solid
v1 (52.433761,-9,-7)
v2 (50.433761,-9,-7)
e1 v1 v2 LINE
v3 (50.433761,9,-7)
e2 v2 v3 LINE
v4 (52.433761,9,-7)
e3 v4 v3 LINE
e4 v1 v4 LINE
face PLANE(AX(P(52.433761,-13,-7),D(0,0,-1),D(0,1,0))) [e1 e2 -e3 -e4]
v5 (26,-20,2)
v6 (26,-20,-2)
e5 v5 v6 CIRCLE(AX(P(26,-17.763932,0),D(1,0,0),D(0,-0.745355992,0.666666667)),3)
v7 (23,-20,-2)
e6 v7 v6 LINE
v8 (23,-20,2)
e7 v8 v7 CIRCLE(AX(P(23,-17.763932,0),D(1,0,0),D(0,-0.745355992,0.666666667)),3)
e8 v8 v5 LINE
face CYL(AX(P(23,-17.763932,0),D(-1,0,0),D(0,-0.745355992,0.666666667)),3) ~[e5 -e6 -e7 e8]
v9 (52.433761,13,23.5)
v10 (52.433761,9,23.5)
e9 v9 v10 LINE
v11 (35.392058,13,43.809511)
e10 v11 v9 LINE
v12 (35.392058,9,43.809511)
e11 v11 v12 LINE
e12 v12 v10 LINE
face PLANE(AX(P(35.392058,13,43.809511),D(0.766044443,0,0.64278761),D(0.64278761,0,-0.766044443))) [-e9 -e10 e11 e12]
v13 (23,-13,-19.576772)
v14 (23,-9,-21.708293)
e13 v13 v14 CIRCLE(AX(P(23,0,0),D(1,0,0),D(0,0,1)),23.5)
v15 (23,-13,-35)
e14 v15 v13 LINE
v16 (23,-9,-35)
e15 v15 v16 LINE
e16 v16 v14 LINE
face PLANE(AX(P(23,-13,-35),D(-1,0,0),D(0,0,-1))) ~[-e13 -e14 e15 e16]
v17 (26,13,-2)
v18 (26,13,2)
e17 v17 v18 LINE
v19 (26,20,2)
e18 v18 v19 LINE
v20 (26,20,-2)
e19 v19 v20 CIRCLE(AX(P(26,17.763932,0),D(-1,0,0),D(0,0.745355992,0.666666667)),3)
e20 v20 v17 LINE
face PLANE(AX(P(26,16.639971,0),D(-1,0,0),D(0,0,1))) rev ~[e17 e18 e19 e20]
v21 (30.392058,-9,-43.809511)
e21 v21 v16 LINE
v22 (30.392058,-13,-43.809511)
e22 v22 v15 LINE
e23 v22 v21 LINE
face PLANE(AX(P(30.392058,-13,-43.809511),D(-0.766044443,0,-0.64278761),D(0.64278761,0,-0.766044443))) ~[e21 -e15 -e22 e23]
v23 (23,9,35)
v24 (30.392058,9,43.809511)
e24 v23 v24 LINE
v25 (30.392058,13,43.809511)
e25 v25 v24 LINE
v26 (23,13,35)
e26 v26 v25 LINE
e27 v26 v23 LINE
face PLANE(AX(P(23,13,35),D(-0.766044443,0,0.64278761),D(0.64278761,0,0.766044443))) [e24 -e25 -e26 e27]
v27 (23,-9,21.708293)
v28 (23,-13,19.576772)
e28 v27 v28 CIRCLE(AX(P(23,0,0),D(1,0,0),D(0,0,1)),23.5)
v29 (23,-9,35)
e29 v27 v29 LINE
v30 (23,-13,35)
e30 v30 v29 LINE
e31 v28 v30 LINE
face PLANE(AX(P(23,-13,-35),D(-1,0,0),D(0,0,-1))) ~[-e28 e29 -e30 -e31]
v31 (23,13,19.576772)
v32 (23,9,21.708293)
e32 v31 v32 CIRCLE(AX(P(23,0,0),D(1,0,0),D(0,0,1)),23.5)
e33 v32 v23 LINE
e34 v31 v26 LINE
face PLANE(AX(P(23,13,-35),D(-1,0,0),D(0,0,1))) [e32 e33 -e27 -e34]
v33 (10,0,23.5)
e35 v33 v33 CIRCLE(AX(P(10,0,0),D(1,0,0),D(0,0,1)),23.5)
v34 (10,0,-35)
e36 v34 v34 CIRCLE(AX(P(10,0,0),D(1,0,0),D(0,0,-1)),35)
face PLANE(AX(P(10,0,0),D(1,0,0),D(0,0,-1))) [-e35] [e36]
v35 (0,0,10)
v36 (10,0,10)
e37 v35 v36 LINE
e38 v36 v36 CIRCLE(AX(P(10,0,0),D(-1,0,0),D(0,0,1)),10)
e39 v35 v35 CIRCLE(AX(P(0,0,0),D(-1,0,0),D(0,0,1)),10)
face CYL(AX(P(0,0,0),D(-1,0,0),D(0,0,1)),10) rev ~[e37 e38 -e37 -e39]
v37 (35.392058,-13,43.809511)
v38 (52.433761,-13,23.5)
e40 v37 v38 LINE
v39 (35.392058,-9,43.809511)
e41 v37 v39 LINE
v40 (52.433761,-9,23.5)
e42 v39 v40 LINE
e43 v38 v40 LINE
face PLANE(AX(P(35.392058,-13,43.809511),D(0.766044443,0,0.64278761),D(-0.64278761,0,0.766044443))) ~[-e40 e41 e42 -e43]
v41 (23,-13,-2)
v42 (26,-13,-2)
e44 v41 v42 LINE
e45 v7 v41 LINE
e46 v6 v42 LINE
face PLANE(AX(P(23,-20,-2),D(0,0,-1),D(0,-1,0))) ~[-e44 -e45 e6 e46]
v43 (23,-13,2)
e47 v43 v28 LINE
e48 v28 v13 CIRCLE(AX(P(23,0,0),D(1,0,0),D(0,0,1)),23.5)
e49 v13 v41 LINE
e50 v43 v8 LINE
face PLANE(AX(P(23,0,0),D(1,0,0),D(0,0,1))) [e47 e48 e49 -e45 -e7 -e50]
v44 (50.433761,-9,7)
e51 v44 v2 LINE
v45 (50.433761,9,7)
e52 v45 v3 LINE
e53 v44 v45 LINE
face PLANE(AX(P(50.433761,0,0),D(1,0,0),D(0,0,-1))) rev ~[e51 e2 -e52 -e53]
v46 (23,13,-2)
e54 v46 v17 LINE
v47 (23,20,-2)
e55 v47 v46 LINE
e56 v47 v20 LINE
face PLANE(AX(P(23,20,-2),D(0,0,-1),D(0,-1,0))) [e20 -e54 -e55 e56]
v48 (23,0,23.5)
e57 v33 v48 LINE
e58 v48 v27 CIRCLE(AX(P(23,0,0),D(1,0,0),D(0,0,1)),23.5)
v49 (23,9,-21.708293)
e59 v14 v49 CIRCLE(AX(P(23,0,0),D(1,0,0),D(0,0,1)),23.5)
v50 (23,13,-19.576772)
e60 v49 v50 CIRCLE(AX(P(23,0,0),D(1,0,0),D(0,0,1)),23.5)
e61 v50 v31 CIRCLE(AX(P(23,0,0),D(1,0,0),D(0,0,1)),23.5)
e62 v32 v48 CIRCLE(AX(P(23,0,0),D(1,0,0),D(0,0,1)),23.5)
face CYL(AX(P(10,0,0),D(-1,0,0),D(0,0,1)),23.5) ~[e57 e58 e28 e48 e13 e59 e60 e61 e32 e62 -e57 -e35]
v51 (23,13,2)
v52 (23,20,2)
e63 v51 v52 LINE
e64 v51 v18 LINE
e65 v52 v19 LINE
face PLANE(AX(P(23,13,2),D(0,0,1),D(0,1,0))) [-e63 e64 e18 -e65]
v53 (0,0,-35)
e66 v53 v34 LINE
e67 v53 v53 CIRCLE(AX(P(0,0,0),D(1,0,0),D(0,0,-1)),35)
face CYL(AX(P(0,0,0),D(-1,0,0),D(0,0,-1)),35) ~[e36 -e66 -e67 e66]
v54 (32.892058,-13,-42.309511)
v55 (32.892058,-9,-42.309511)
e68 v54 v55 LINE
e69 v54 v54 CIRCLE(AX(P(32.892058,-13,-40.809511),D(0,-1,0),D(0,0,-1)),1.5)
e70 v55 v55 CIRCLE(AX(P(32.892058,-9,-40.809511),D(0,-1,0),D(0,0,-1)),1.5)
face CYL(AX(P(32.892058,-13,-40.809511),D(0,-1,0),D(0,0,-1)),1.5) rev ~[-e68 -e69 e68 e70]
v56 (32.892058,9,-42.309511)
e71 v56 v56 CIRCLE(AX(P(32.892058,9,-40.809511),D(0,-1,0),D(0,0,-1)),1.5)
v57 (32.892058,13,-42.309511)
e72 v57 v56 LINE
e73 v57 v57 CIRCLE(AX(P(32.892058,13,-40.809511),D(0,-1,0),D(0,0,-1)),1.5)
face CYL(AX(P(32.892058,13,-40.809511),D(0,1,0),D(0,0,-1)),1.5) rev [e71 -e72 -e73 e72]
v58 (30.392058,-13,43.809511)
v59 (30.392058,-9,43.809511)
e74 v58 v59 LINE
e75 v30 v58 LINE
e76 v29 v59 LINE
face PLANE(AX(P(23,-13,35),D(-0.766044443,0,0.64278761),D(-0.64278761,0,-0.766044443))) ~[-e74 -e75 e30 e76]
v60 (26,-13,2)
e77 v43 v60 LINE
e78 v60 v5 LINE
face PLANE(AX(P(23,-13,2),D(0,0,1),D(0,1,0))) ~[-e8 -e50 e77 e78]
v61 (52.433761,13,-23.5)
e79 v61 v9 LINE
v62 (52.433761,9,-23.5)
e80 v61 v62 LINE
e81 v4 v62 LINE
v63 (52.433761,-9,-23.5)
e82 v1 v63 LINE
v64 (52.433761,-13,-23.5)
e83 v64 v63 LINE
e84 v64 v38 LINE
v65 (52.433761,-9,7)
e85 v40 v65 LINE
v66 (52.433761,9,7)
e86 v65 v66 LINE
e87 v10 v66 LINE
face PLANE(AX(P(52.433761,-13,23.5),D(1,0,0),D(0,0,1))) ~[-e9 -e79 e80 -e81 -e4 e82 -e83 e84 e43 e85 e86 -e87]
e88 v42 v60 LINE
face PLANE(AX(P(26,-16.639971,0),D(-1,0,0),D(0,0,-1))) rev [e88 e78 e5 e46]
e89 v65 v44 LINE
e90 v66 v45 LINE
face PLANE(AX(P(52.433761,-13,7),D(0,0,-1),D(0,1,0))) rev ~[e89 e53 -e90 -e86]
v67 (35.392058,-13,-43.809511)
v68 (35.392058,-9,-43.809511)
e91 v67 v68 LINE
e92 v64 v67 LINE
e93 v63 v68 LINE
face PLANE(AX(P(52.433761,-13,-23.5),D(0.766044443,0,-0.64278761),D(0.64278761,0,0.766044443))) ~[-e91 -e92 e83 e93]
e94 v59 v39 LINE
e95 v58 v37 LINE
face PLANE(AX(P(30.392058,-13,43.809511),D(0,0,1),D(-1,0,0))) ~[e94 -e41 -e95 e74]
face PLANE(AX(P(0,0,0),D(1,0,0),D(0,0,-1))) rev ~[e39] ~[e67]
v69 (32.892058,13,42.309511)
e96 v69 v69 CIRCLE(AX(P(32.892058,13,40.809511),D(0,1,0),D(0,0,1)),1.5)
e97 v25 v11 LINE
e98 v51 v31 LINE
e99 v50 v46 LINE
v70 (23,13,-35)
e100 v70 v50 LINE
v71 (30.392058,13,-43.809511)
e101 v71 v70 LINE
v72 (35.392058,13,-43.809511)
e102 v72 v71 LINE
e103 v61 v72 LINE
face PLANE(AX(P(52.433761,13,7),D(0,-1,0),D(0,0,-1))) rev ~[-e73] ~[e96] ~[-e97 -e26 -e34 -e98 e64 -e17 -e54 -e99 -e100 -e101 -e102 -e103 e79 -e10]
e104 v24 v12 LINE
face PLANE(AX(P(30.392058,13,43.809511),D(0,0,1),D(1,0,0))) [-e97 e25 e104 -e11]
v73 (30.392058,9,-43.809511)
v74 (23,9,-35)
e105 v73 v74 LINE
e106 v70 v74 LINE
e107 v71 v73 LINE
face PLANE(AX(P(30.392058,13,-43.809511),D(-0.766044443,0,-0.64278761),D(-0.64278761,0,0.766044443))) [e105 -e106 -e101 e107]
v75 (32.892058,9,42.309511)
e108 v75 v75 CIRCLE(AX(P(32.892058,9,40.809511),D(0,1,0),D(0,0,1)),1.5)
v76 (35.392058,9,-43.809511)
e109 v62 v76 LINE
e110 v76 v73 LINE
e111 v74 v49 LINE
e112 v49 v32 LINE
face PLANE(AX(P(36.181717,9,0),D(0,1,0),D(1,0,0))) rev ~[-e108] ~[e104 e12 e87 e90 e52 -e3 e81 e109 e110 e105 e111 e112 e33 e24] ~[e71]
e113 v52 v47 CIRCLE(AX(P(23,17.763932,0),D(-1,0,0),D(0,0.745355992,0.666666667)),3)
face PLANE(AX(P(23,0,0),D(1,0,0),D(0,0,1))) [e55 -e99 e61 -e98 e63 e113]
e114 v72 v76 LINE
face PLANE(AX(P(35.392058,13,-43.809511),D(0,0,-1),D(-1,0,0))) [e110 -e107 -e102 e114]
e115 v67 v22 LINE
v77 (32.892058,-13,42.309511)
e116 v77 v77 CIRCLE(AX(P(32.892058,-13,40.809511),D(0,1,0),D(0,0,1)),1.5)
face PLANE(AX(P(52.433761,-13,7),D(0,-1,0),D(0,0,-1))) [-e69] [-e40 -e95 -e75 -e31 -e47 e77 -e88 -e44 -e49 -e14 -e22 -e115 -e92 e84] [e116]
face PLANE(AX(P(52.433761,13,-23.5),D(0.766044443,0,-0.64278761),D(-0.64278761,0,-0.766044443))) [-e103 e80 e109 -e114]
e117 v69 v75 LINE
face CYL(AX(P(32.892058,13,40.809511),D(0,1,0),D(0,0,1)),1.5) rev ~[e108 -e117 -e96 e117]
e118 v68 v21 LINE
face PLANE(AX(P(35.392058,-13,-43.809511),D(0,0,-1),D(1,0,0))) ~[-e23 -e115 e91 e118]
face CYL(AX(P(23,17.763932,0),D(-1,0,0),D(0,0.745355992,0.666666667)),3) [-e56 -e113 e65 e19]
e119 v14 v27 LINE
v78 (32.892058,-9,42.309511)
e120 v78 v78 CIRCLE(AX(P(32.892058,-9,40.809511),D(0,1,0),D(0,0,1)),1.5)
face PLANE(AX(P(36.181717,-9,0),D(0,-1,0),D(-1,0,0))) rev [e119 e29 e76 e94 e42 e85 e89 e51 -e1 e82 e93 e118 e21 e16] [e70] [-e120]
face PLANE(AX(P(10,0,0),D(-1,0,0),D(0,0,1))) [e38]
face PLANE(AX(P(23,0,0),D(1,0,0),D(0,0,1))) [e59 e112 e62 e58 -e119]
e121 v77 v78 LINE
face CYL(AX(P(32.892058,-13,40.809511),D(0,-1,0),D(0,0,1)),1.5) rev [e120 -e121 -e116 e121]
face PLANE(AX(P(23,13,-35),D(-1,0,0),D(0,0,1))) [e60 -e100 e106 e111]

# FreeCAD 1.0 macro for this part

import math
import FreeCAD as App
import Part
import Sketcher
from FreeCAD import Vector
Q = App.Units.Quantity


def add_polygon(sketch, points):
    """Adds a closed chain of lines whose ends are joined by coincident constraints."""
    first, n = sketch.GeometryCount, len(points)
    for a, b in zip(points, points[1:] + points[:1]):
        sketch.addGeometry(Part.LineSegment(App.Vector(*a, 0), App.Vector(*b, 0)), False)
    for i in range(n):
        sketch.addConstraint(Sketcher.Constraint("Coincident", first + i, 2, first + (i + 1) % n, 1))

doc = App.newDocument("Part")
params = doc.addObject("Spreadsheet::Sheet", "Params")
for row, (alias, value) in enumerate([
    ("sketch1_diameter", "70 mm"),
    ("pad1_length", "10 mm"),
    ("sketch2_diameter", "47 mm"),
    ("pad2_length", "13 mm"),
    ("sketch3_width", "5 mm"),
    ("sketch3_height", "70 mm"),
    ("sketch3_height2", "47 mm"),
    ("sketch3_length", "11.5 mm"),
    ("pad3_length", "4 mm"),
    ("sketch4_diameter", "3 mm"),
    ("pocket1_length", "4 mm"),
    ("sketch5_diameter", "3 mm"),
    ("pocket2_length", "4 mm"),
    ("sketch6_radius", "3 mm"),
    ("sketch6_width", "7 mm"),
    ("sketch6_height", "4 mm"),
    ("pad4_length", "3 mm"),
    ("sketch7_width", "26 mm"),
    ("sketch7_height", "14 mm"),
    ("pad5_length", "2 mm"),
    ("sketch8_diameter", "20 mm"),
    ("pocket3_length", "10 mm"),
], start=1):
    params.set(f"A{row}", alias)
    params.set(f"B{row}", "=" + value)
    params.setAlias(f"B{row}", alias)

body = doc.addObject("PartDesign::Body", "Body")

# Sketch on YZ plane
sketch1 = body.newObject("Sketcher::SketchObject", "Sketch")
sketch1.AttachmentSupport = (doc.getObject("YZ_Plane"), [""])
sketch1.MapMode = "FlatFace"
sketch1.addGeometry(Part.Circle(Vector(0, 0, 0), Vector(0, 0, 1), 35), False)
sketch1.addConstraint([
    Sketcher.Constraint("Coincident", 0, 3, -1, 1),
    Sketcher.Constraint("Diameter", 0, Q("70 mm")),
])
sketch1.setExpression("Constraints[1]", "Params.sketch1_diameter")
pad1 = body.newObject("PartDesign::Pad", "Pad")
pad1.Profile = sketch1
pad1.setExpression("Length", "Params.pad1_length")

# Sketch on YZ plane
sketch2 = body.newObject("Sketcher::SketchObject", "Sketch001")
sketch2.AttachmentSupport = (doc.getObject("YZ_Plane"), [""])
sketch2.MapMode = "FlatFace"
sketch2.AttachmentOffset = App.Placement(Vector(0, 0, 10), App.Rotation())
sketch2.addGeometry(Part.Circle(Vector(0, 0, 0), Vector(0, 0, 1), 24), False)
sketch2.addConstraint([
    Sketcher.Constraint("Coincident", 0, 3, -1, 1),
    Sketcher.Constraint("Diameter", 0, Q("47 mm")),
])
sketch2.setExpression("Constraints[1]", "Params.sketch2_diameter")
pad2 = body.newObject("PartDesign::Pad", "Pad001")
pad2.Profile = sketch2
pad2.setExpression("Length", "Params.pad2_length")

# Sketch on XZ plane
sketch3 = body.newObject("Sketcher::SketchObject", "Sketch002")
sketch3.AttachmentSupport = (doc.getObject("XZ_Plane"), [""])
sketch3.MapMode = "FlatFace"
sketch3.AttachmentOffset = App.Placement(Vector(0, 0, -13), App.Rotation())
add_polygon(sketch3, [(23, -35), (23, 35), (30.4, 43.8), (35.4, 43.8), (52.4, 23.5), (52.4, -23.5), (35.4, -43.8), (30.4, -43.8)])  # lines 0-7
sketch3.addConstraint([
    Sketcher.Constraint("Vertical", 0),
    Sketcher.Constraint("Horizontal", 2),
    Sketcher.Constraint("Vertical", 4),
    Sketcher.Constraint("Horizontal", 6),
    Sketcher.Constraint("Symmetric", 2, 2, 5, 2, -1),
    Sketcher.Constraint("Parallel", 1, 5),
    Sketcher.Constraint("Parallel", 3, 7),
    Sketcher.Constraint("Vertical", 1, 2, 6, 2),
    Sketcher.Constraint("Equal", 3, 5),
    Sketcher.Constraint("DistanceX", 2, 1, 2, 2, Q("5 mm")),
    Sketcher.Constraint("DistanceY", 0, 1, 0, 2, Q("70 mm")),
    Sketcher.Constraint("DistanceY", 4, 2, 4, 1, Q("47 mm")),
    Sketcher.Constraint("Angle", 1, Q("50 deg")),
    Sketcher.Constraint("DistanceX", -1, 1, 0, 2, Q("23 mm")),
    Sketcher.Constraint("Distance", 1, Q("11.5 mm")),
])
sketch3.setExpression("Constraints[17]", "Params.sketch3_width")
sketch3.setExpression("Constraints[18]", "Params.sketch3_height")
sketch3.setExpression("Constraints[19]", "Params.sketch3_height2")
sketch3.setExpression("Constraints[22]", "Params.sketch3_length")
pad3 = body.newObject("PartDesign::Pad", "Pad002")
pad3.Profile = sketch3
pad3.setExpression("Length", "Params.pad3_length")

# Sketch on XZ plane
sketch4 = body.newObject("Sketcher::SketchObject", "Sketch003")
sketch4.AttachmentSupport = (doc.getObject("XZ_Plane"), [""])
sketch4.MapMode = "FlatFace"
sketch4.AttachmentOffset = App.Placement(Vector(0, 0, -13), App.Rotation())
sketch4.addGeometry(Part.Circle(Vector(32.9, 40.8, 0), Vector(0, 0, 1), 1.5), False)
sketch4.addConstraint([
    Sketcher.Constraint("Diameter", 0, Q("3 mm")),
    Sketcher.Constraint("DistanceY", -1, 1, 0, 3, Q("40.809511 mm")),
    Sketcher.Constraint("DistanceX", -1, 1, 0, 3, Q("32.892058 mm")),
])
sketch4.setExpression("Constraints[0]", "Params.sketch4_diameter")
pocket1 = body.newObject("PartDesign::Pocket", "Pocket")
pocket1.Profile = sketch4
pocket1.setExpression("Length", "Params.pocket1_length")
pocket1.Reversed = True
doc.recompute()

mirrored = body.newObject("PartDesign::Mirrored", "Mirrored")
mirrored.Originals = [pocket1]
mirrored.MirrorPlane = (doc.getObject("XY_Plane"), [""])
body.Tip = mirrored
doc.recompute()

mirrored2 = body.newObject("PartDesign::Mirrored", "Mirrored001")
mirrored2.Originals = [pad3, pocket1]
mirrored2.MirrorPlane = (doc.getObject("XZ_Plane"), [""])
body.Tip = mirrored2

# Sketch on XZ plane
sketch5 = body.newObject("Sketcher::SketchObject", "Sketch004")
sketch5.AttachmentSupport = (doc.getObject("XZ_Plane"), [""])
sketch5.MapMode = "FlatFace"
sketch5.AttachmentOffset = App.Placement(Vector(0, 0, 13), App.Rotation())
sketch5.addGeometry(Part.Circle(Vector(32.9, -40.8, 0), Vector(0, 0, 1), 1.5), False)
sketch5.addConstraint([
    Sketcher.Constraint("Diameter", 0, Q("3 mm")),
    Sketcher.Constraint("DistanceY", 0, 3, -1, 1, Q("40.809511 mm")),
    Sketcher.Constraint("DistanceX", -1, 1, 0, 3, Q("32.892058 mm")),
])
sketch5.setExpression("Constraints[0]", "Params.sketch5_diameter")
pocket2 = body.newObject("PartDesign::Pocket", "Pocket001")
pocket2.Profile = sketch5
pocket2.setExpression("Length", "Params.pocket2_length")

# Sketch on YZ plane
sketch6 = body.newObject("Sketcher::SketchObject", "Sketch005")
sketch6.AttachmentSupport = (doc.getObject("YZ_Plane"), [""])
sketch6.MapMode = "FlatFace"
sketch6.AttachmentOffset = App.Placement(Vector(0, 0, 23), App.Rotation())
sketch6.addGeometry([
    Part.LineSegment(Vector(20, 2, 0), Vector(13, 2, 0)),
    Part.LineSegment(Vector(13, 2, 0), Vector(13, -2, 0)),
    Part.LineSegment(Vector(13, -2, 0), Vector(20, -2, 0)),
    Part.ArcOfCircle(Part.Circle(Vector(17.8, 0, 0), Vector(0, 0, 1), 3), math.radians(-42), math.radians(42)),
], False)
sketch6.addConstraint([
    Sketcher.Constraint("Coincident", 0, 2, 1, 1),
    Sketcher.Constraint("Coincident", 1, 2, 2, 1),
    Sketcher.Constraint("Coincident", 2, 2, 3, 1),
    Sketcher.Constraint("Coincident", 3, 2, 0, 1),
    Sketcher.Constraint("Horizontal", 0),
    Sketcher.Constraint("Vertical", 1),
    Sketcher.Constraint("Horizontal", 2),
    Sketcher.Constraint("Symmetric", 2, 2, 3, 2, -1),
    Sketcher.Constraint("Radius", 3, Q("3 mm")),
    Sketcher.Constraint("DistanceX", 0, 2, 0, 1, Q("7 mm")),
    Sketcher.Constraint("DistanceY", 1, 2, 1, 1, Q("4 mm")),
    Sketcher.Constraint("DistanceX", -1, 1, 0, 2, Q("13 mm")),
])
sketch6.setExpression("Constraints[8]", "Params.sketch6_radius")
sketch6.setExpression("Constraints[9]", "Params.sketch6_width")
sketch6.setExpression("Constraints[10]", "Params.sketch6_height")
pad4 = body.newObject("PartDesign::Pad", "Pad003")
pad4.Profile = sketch6
pad4.setExpression("Length", "Params.pad4_length")
doc.recompute()

mirrored3 = body.newObject("PartDesign::Mirrored", "Mirrored002")
mirrored3.Originals = [pad4]
mirrored3.MirrorPlane = (doc.getObject("XZ_Plane"), [""])
body.Tip = mirrored3

# Sketch on YZ plane
sketch7 = body.newObject("Sketcher::SketchObject", "Sketch006")
sketch7.AttachmentSupport = (doc.getObject("YZ_Plane"), [""])
sketch7.MapMode = "FlatFace"
sketch7.AttachmentOffset = App.Placement(Vector(0, 0, 52.433761), App.Rotation())
add_polygon(sketch7, [(13, 7), (-13, 7), (-13, -7), (13, -7)])  # lines 0-3
sketch7.addConstraint([
    Sketcher.Constraint("Horizontal", 0),
    Sketcher.Constraint("Vertical", 1),
    Sketcher.Constraint("Horizontal", 2),
    Sketcher.Constraint("Vertical", 3),
    Sketcher.Constraint("Symmetric", 0, 2, 2, 2, -1, 1),
    Sketcher.Constraint("DistanceX", 0, 2, 0, 1, Q("26 mm")),
    Sketcher.Constraint("DistanceY", 1, 2, 1, 1, Q("14 mm")),
])
sketch7.setExpression("Constraints[9]", "Params.sketch7_width")
sketch7.setExpression("Constraints[10]", "Params.sketch7_height")
pad5 = body.newObject("PartDesign::Pad", "Pad004")
pad5.Profile = sketch7
pad5.setExpression("Length", "Params.pad5_length")
pad5.Reversed = True

# Sketch on YZ plane
sketch8 = body.newObject("Sketcher::SketchObject", "Sketch007")
sketch8.AttachmentSupport = (doc.getObject("YZ_Plane"), [""])
sketch8.MapMode = "FlatFace"
sketch8.addGeometry(Part.Circle(Vector(0, 0, 0), Vector(0, 0, 1), 10), False)
sketch8.addConstraint([
    Sketcher.Constraint("Coincident", 0, 3, -1, 1),
    Sketcher.Constraint("Diameter", 0, Q("20 mm")),
])
sketch8.setExpression("Constraints[1]", "Params.sketch8_diameter")
pocket3 = body.newObject("PartDesign::Pocket", "Pocket002")
pocket3.Profile = sketch8
pocket3.setExpression("Length", "Params.pocket3_length")
pocket3.Reversed = True

doc.recompute()
